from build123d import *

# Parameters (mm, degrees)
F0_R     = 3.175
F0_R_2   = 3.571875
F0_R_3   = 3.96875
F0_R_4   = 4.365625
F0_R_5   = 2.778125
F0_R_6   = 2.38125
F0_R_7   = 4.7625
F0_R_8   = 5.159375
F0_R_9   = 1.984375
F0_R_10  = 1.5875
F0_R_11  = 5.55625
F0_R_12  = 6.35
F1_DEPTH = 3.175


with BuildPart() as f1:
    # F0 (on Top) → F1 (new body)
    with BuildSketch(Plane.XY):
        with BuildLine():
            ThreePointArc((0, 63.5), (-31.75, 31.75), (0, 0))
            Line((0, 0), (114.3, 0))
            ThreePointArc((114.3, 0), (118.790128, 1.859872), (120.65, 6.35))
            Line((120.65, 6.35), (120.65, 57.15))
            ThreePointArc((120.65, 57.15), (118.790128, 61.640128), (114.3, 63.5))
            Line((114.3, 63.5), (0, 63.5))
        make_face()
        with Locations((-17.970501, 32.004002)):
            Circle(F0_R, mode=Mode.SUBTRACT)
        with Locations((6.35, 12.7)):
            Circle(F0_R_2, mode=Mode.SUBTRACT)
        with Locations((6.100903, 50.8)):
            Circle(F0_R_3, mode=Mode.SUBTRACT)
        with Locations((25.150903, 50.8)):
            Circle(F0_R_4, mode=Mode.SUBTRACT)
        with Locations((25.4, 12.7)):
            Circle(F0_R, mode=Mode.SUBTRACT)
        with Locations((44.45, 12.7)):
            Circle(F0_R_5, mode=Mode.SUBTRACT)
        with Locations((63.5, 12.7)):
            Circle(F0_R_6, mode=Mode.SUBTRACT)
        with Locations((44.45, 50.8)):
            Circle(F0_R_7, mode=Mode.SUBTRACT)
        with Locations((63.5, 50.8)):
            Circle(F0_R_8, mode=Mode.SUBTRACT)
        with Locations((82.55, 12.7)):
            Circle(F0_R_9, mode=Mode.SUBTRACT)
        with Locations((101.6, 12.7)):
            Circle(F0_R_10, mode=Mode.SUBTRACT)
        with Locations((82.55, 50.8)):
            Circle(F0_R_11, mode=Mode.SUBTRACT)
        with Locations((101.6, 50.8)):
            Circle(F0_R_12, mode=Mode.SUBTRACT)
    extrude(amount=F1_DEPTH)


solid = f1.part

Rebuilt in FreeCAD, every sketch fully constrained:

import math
import FreeCAD as App
import Part
import Sketcher

V = App.Vector
Q = App.Units.Quantity

doc = App.newDocument("Part")
body = doc.addObject("PartDesign::Body", "Body")

sketch1 = body.newObject("Sketcher::SketchObject", "Sketch")
sketch1.AttachmentSupport = (doc.getObject("XY_Plane"), [""])
sketch1.MapMode = "FlatFace"
sketch1.addGeometry([
    Part.ArcOfCircle(Part.Circle(V(0, 31.8, 0), V(0, 0, 1), 31.8), math.radians(90), math.radians(270)),
    Part.LineSegment(V(0, 0, 0), V(114.3, 0, 0)),
    Part.ArcOfCircle(Part.Circle(V(114.3, 6.4, 0), V(0, 0, 1), 6.4), math.radians(-90), math.radians(0)),
    Part.LineSegment(V(120.7, 6.3, 0), V(120.7, 57.1, 0)),
    Part.ArcOfCircle(Part.Circle(V(114.3, 57.1, 0), V(0, 0, 1), 6.4), math.radians(0), math.radians(90)),
    Part.LineSegment(V(114.3, 63.5, 0), V(0, 63.5, 0)),
    Part.Circle(V(6.3, 12.7, 0), V(0, 0, 1), 3.6),
    Part.Circle(V(25.4, 12.7, 0), V(0, 0, 1), 3.2),
    Part.Circle(V(-18, 32, 0), V(0, 0, 1), 3.2),
    Part.Circle(V(44.5, 12.7, 0), V(0, 0, 1), 2.8),
    Part.Circle(V(63.5, 12.7, 0), V(0, 0, 1), 2.4),
    Part.Circle(V(82.5, 12.7, 0), V(0, 0, 1), 2),
    Part.Circle(V(101.6, 12.7, 0), V(0, 0, 1), 1.6),
    Part.Circle(V(6.1, 50.8, 0), V(0, 0, 1), 4),
    Part.Circle(V(25.2, 50.8, 0), V(0, 0, 1), 4.4),
    Part.Circle(V(44.5, 50.8, 0), V(0, 0, 1), 4.8),
    Part.Circle(V(63.5, 50.8, 0), V(0, 0, 1), 5.2),
    Part.Circle(V(82.5, 50.8, 0), V(0, 0, 1), 5.6),
    Part.Circle(V(101.6, 50.8, 0), V(0, 0, 1), 6.3),
], False)
sketch1.addConstraint([
    Sketcher.Constraint("Tangent", 0, 2, 1, 1),
    Sketcher.Constraint("Tangent", 1, 2, 2, 1),
    Sketcher.Constraint("Tangent", 2, 2, 3, 1),
    Sketcher.Constraint("Tangent", 3, 2, 4, 1),
    Sketcher.Constraint("Tangent", 4, 2, 5, 1),
    Sketcher.Constraint("Tangent", 5, 2, 0, 1),
    Sketcher.Constraint("Horizontal", 1),
    Sketcher.Constraint("Vertical", 3),
    Sketcher.Constraint("Horizontal", 5),
    Sketcher.Constraint("Coincident", 0, 2, -1, 1),
    Sketcher.Constraint("Equal", 2, 4),
    Sketcher.Constraint("Equal", 7, 8),
    Sketcher.Constraint("Equal", 4, 18),
    Sketcher.Constraint("Horizontal", 6, 3, 7, 3),
    Sketcher.Constraint("Horizontal", 7, 3, 9, 3),
    Sketcher.Constraint("Horizontal", 9, 3, 10, 3),
    Sketcher.Constraint("Horizontal", 10, 3, 11, 3),
    Sketcher.Constraint("Horizontal", 11, 3, 12, 3),
    Sketcher.Constraint("Horizontal", 13, 3, 14, 3),
    Sketcher.Constraint("Horizontal", 14, 3, 15, 3),
    Sketcher.Constraint("Horizontal", 15, 3, 16, 3),
    Sketcher.Constraint("Horizontal", 16, 3, 17, 3),
    Sketcher.Constraint("Horizontal", 17, 3, 18, 3),
    Sketcher.Constraint("Vertical", 9, 3, 15, 3),
    Sketcher.Constraint("Vertical", 10, 3, 16, 3),
    Sketcher.Constraint("Vertical", 11, 3, 17, 3),
    Sketcher.Constraint("Vertical", 12, 3, 18, 3),
    Sketcher.Constraint("Diameter", 18, Q("0.5 in")),
    Sketcher.Constraint("Diameter", 7, Q("0.25 in")),
    Sketcher.Constraint("DistanceY", 3, 1, 3, 2, Q("2 in")),
    Sketcher.Constraint("Diameter", 6, Q("0.28125 in")),
    Sketcher.Constraint("Diameter", 9, Q("0.21875 in")),
    Sketcher.Constraint("Diameter", 10, Q("0.1875 in")),
    Sketcher.Constraint("Diameter", 11, Q("0.15625 in")),
    Sketcher.Constraint("Diameter", 12, Q("0.125 in")),
    Sketcher.Constraint("Diameter", 13, Q("0.3125 in")),
    Sketcher.Constraint("Diameter", 14, Q("0.34375 in")),
    Sketcher.Constraint("Diameter", 15, Q("0.375 in")),
    Sketcher.Constraint("Diameter", 16, Q("0.40625 in")),
    Sketcher.Constraint("Diameter", 17, Q("0.4375 in")),
    Sketcher.Constraint("DistanceX", 1, 1, 1, 2, Q("4.5 in")),
    Sketcher.Constraint("DistanceX", -1, 1, 7, 3, Q("1 in")),
    Sketcher.Constraint("DistanceX", -1, 1, 12, 3, Q("4 in")),
    Sketcher.Constraint("DistanceY", -1, 1, 13, 3, Q("2 in")),
    Sketcher.Constraint("DistanceX", 10, 3, 2, 3, Q("2 in")),
    Sketcher.Constraint("DistanceY", 12, 3, 4, 2, Q("2 in")),
    Sketcher.Constraint("DistanceX", 6, 3, 9, 3, Q("1.5 in")),
    Sketcher.Constraint("DistanceX", 9, 3, 11, 3, Q("1.5 in")),
    Sketcher.Constraint("DistanceX", 11, 3, 2, 2, Q("1.5 in")),
    Sketcher.Constraint("DistanceY", -1, 1, 8, 3, Q("1.2600001 in")),
    Sketcher.Constraint("DistanceX", 13, 3, 14, 3, Q("0.75 in")),
    Sketcher.Constraint("DistanceX", 8, 3, -1, 1, Q("0.7075 in")),
    Sketcher.Constraint("DistanceX", -1, 1, 13, 3, Q("6.100903 mm")),
])
pad1 = body.newObject("PartDesign::Pad", "Pad")
pad1.Profile = sketch1
pad1.Length = Q("0.125 in")

doc.recompute()
